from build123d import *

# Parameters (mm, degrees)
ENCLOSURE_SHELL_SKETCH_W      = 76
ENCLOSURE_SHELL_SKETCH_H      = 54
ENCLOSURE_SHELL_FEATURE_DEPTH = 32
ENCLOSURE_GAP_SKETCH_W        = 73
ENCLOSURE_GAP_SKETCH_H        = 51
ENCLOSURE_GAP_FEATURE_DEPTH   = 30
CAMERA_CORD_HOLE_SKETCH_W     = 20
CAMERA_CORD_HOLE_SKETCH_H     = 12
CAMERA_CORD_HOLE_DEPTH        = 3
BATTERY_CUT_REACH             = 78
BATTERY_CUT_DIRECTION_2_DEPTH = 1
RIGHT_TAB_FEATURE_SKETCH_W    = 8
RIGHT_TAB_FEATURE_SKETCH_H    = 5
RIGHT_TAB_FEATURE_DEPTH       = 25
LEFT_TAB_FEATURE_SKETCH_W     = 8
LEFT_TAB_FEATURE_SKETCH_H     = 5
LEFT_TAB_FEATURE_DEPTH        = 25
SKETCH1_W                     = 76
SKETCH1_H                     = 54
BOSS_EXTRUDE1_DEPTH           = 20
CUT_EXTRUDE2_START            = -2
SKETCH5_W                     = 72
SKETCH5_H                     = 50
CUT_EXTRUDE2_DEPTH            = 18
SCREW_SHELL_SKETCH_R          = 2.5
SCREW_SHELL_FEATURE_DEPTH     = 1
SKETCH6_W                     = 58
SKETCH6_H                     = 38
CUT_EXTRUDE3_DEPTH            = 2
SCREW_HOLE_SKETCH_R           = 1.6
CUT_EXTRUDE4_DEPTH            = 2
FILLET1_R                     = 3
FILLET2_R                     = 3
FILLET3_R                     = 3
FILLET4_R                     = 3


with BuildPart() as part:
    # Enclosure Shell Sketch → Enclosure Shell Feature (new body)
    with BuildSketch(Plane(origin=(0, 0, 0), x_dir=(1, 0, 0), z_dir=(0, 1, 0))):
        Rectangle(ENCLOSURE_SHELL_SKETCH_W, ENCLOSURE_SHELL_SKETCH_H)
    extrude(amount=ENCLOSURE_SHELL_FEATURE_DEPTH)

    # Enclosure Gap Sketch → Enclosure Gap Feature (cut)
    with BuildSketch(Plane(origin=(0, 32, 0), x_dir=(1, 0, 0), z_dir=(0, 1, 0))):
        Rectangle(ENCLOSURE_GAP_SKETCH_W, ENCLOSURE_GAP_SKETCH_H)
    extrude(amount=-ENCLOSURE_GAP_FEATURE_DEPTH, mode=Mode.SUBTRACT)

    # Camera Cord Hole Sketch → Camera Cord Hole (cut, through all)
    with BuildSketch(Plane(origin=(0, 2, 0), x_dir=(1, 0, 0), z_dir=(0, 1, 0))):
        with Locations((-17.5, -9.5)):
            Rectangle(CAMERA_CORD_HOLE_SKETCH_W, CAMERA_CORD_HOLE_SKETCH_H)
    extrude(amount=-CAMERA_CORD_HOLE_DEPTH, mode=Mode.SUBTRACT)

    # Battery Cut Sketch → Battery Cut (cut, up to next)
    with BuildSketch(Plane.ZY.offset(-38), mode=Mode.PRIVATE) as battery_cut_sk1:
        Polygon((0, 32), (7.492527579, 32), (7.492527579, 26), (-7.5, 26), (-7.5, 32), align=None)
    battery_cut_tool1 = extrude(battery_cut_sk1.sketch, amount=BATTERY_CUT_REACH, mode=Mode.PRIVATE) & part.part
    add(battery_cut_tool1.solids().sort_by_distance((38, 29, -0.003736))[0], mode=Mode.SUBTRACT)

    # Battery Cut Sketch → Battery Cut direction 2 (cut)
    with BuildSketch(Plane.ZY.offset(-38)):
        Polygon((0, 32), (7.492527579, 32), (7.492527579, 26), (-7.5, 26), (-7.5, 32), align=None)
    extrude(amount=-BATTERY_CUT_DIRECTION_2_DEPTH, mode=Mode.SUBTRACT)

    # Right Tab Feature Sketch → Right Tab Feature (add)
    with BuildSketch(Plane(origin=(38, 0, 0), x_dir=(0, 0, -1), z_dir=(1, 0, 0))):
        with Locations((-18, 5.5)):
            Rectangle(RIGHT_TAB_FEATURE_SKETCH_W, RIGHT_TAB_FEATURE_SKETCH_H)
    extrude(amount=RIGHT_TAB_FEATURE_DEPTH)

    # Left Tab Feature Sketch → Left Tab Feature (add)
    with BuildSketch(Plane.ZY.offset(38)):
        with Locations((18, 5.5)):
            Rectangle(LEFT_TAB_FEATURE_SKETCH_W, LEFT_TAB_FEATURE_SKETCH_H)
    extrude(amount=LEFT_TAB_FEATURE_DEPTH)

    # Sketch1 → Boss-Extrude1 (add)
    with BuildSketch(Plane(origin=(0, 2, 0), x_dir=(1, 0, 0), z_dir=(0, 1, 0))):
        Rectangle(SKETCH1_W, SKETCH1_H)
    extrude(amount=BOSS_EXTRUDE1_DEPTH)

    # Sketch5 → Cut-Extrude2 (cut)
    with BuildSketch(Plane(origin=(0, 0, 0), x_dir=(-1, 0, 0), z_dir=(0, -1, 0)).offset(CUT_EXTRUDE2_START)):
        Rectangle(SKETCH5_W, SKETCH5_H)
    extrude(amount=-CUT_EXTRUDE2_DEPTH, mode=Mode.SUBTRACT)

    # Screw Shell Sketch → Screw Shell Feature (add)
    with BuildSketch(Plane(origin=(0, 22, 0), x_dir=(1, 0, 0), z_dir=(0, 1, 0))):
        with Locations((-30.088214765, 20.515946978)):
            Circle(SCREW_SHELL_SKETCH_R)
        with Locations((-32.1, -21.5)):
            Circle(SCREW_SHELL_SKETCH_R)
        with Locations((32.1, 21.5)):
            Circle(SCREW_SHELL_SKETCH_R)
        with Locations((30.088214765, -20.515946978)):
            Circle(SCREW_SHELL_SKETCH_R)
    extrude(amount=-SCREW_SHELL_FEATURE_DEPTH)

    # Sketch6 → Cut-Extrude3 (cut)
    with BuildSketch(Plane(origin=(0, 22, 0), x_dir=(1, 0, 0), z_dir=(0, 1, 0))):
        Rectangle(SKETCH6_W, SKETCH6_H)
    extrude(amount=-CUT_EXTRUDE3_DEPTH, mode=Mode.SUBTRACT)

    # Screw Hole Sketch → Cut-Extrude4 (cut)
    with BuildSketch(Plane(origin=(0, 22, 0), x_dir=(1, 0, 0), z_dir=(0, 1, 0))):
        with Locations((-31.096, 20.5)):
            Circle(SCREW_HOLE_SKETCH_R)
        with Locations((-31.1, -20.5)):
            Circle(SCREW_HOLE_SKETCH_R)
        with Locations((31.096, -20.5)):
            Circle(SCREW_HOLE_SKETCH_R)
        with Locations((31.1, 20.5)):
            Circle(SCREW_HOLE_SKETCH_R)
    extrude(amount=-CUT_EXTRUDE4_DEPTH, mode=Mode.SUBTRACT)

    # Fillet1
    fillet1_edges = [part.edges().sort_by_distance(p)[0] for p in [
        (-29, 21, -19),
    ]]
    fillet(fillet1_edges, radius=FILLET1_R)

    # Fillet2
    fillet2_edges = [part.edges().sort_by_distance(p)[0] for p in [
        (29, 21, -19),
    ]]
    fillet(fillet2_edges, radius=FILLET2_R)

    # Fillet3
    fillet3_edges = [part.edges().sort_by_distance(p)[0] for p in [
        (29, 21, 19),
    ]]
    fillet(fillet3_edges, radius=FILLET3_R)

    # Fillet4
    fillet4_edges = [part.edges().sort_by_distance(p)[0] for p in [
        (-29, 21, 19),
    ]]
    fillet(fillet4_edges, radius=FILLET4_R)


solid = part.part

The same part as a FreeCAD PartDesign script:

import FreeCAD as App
import Part
import Sketcher
from FreeCAD import Vector


def edges_at(feature, points):
    """Names of the edges that pass closest to the given points."""
    edges = feature.Shape.Edges
    near = lambda p: min(range(len(edges)), key=lambda i: edges[i].distToShape(Part.Vertex(*p))[0])
    return sorted({f"Edge{near(p) + 1}" for p in points})

doc = App.newDocument("Part")
body = doc.addObject("PartDesign::Body", "Body")

sketch1 = doc.addObject("Sketcher::SketchObject", "Sketch")
body.addObject(sketch1)
sketch1.AttachmentSupport = (doc.XZ_Plane, [""])
sketch1.MapMode = "FlatFace"
sketch1.addGeometry(Part.LineSegment(Vector(-38, -27, 0), Vector(-38, 27, 0)), False)
sketch1.addGeometry(Part.LineSegment(Vector(-38, 27, 0), Vector(38, 27, 0)), False)
sketch1.addGeometry(Part.LineSegment(Vector(38, 27, 0), Vector(38, -27, 0)), False)
sketch1.addGeometry(Part.LineSegment(Vector(38, -27, 0), Vector(-38, -27, 0)), False)
sketch1.addConstraint(Sketcher.Constraint("Coincident", 0, 2, 1, 1))
sketch1.addConstraint(Sketcher.Constraint("Coincident", 1, 2, 2, 1))
sketch1.addConstraint(Sketcher.Constraint("Coincident", 2, 2, 3, 1))
sketch1.addConstraint(Sketcher.Constraint("Coincident", 3, 2, 0, 1))
sketch1.addConstraint(Sketcher.Constraint("Vertical", 0))
sketch1.addConstraint(Sketcher.Constraint("Horizontal", 1))
sketch1.addConstraint(Sketcher.Constraint("Vertical", 2))
sketch1.addConstraint(Sketcher.Constraint("Horizontal", 3))
sketch1.addConstraint(Sketcher.Constraint("Symmetric", 0, 2, 2, 2, -1, 1))
sketch1.addConstraint(Sketcher.Constraint("DistanceX", 1, 1, 1, 2, 76.0))
sketch1.addConstraint(Sketcher.Constraint("DistanceY", 0, 1, 0, 2, 54.0))
pad1 = doc.addObject("PartDesign::Pad", "Pad")
body.addObject(pad1)
pad1.Profile = sketch1
pad1.Length = 32
pad1.Reversed = True

sketch2 = doc.addObject("Sketcher::SketchObject", "Sketch001")
body.addObject(sketch2)
sketch2.AttachmentSupport = (doc.XZ_Plane, [""])
sketch2.MapMode = "FlatFace"
sketch2.AttachmentOffset = App.Placement(Vector(0, 0, -32), App.Rotation())
sketch2.addGeometry(Part.LineSegment(Vector(-36, -26, 0), Vector(-36, 26, 0)), False)
sketch2.addGeometry(Part.LineSegment(Vector(-36, 26, 0), Vector(36, 26, 0)), False)
sketch2.addGeometry(Part.LineSegment(Vector(36, 26, 0), Vector(36, -26, 0)), False)
sketch2.addGeometry(Part.LineSegment(Vector(36, -26, 0), Vector(-36, -26, 0)), False)
sketch2.addConstraint(Sketcher.Constraint("Coincident", 0, 2, 1, 1))
sketch2.addConstraint(Sketcher.Constraint("Coincident", 1, 2, 2, 1))
sketch2.addConstraint(Sketcher.Constraint("Coincident", 2, 2, 3, 1))
sketch2.addConstraint(Sketcher.Constraint("Coincident", 3, 2, 0, 1))
sketch2.addConstraint(Sketcher.Constraint("Vertical", 0))
sketch2.addConstraint(Sketcher.Constraint("Horizontal", 1))
sketch2.addConstraint(Sketcher.Constraint("Vertical", 2))
sketch2.addConstraint(Sketcher.Constraint("Horizontal", 3))
sketch2.addConstraint(Sketcher.Constraint("Symmetric", 0, 2, 2, 2, -1, 1))
sketch2.addConstraint(Sketcher.Constraint("DistanceX", 1, 1, 1, 2, 73.0))
sketch2.addConstraint(Sketcher.Constraint("DistanceY", 0, 1, 0, 2, 51.0))
pocket1 = doc.addObject("PartDesign::Pocket", "Pocket")
body.addObject(pocket1)
pocket1.Profile = sketch2
pocket1.Length = 30
pocket1.Reversed = True

sketch3 = doc.addObject("Sketcher::SketchObject", "Sketch002")
body.addObject(sketch3)
sketch3.AttachmentSupport = (doc.XZ_Plane, [""])
sketch3.MapMode = "FlatFace"
sketch3.AttachmentOffset = App.Placement(Vector(0, 0, -2), App.Rotation())
sketch3.addGeometry(Part.LineSegment(Vector(-28, 4, 0), Vector(-28, 16, 0)), False)
sketch3.addGeometry(Part.LineSegment(Vector(-28, 16, 0), Vector(-8, 16, 0)), False)
sketch3.addGeometry(Part.LineSegment(Vector(-8, 16, 0), Vector(-8, 4, 0)), False)
sketch3.addGeometry(Part.LineSegment(Vector(-8, 4, 0), Vector(-28, 4, 0)), False)
sketch3.addConstraint(Sketcher.Constraint("Coincident", 0, 2, 1, 1))
sketch3.addConstraint(Sketcher.Constraint("Coincident", 1, 2, 2, 1))
sketch3.addConstraint(Sketcher.Constraint("Coincident", 2, 2, 3, 1))
sketch3.addConstraint(Sketcher.Constraint("Coincident", 3, 2, 0, 1))
sketch3.addConstraint(Sketcher.Constraint("Vertical", 0))
sketch3.addConstraint(Sketcher.Constraint("Horizontal", 1))
sketch3.addConstraint(Sketcher.Constraint("Vertical", 2))
sketch3.addConstraint(Sketcher.Constraint("Horizontal", 3))
sketch3.addConstraint(Sketcher.Constraint("DistanceX", 1, 1, 1, 2, 20.0))
sketch3.addConstraint(Sketcher.Constraint("DistanceY", 0, 1, 0, 2, 12.0))
sketch3.addConstraint(Sketcher.Constraint("DistanceX", 0, 2, -1, 1, 27.5))
sketch3.addConstraint(Sketcher.Constraint("DistanceY", -1, 1, 0, 2, 15.5))
pocket2 = doc.addObject("PartDesign::Pocket", "Pocket001")
body.addObject(pocket2)
pocket2.Profile = sketch3
pocket2.Type = "ThroughAll"
pocket2.Reversed = True

sketch4 = doc.addObject("Sketcher::SketchObject", "Sketch003")
body.addObject(sketch4)
sketch4.AttachmentSupport = (doc.YZ_Plane, [""])
sketch4.MapMode = "FlatFace"
sketch4.AttachmentOffset = App.Placement(Vector(0, 0, 38), App.Rotation())
sketch4.addGeometry(Part.LineSegment(Vector(32, 7, 0), Vector(32, -8, 0)), False)
sketch4.addGeometry(Part.LineSegment(Vector(32, -8, 0), Vector(26, -8, 0)), False)
sketch4.addGeometry(Part.LineSegment(Vector(26, -8, 0), Vector(26, 7, 0)), False)
sketch4.addGeometry(Part.LineSegment(Vector(26, 7, 0), Vector(32, 7, 0)), False)
sketch4.addConstraint(Sketcher.Constraint("Coincident", 0, 2, 1, 1))
sketch4.addConstraint(Sketcher.Constraint("Coincident", 1, 2, 2, 1))
sketch4.addConstraint(Sketcher.Constraint("Coincident", 2, 2, 3, 1))
sketch4.addConstraint(Sketcher.Constraint("Coincident", 3, 2, 0, 1))
sketch4.addConstraint(Sketcher.Constraint("Vertical", 0))
sketch4.addConstraint(Sketcher.Constraint("Horizontal", 1))
sketch4.addConstraint(Sketcher.Constraint("Vertical", 2))
sketch4.addConstraint(Sketcher.Constraint("Horizontal", 3))
sketch4.addConstraint(Sketcher.Constraint("DistanceX", 1, 2, 1, 1, 6.0))
sketch4.addConstraint(Sketcher.Constraint("DistanceX", -1, 1, 0, 2, 32.0))
sketch4.addConstraint(Sketcher.Constraint("DistanceY", 0, 2, -1, 1, 7.5))
sketch4.addConstraint(Sketcher.Constraint("DistanceY", 0, 2, 0, 1, 14.992528))
pocket3 = doc.addObject("PartDesign::Pocket", "Pocket002")
body.addObject(pocket3)
pocket3.Profile = sketch4
pocket3.Type = "UpToFirst"

sketch5 = doc.addObject("Sketcher::SketchObject", "Sketch004")
body.addObject(sketch5)
sketch5.AttachmentSupport = (doc.YZ_Plane, [""])
sketch5.MapMode = "FlatFace"
sketch5.AttachmentOffset = App.Placement(Vector(0, 0, 38), App.Rotation())
sketch5.addGeometry(Part.LineSegment(Vector(32, 7, 0), Vector(32, -8, 0)), False)
sketch5.addGeometry(Part.LineSegment(Vector(32, -8, 0), Vector(26, -8, 0)), False)
sketch5.addGeometry(Part.LineSegment(Vector(26, -8, 0), Vector(26, 7, 0)), False)
sketch5.addGeometry(Part.LineSegment(Vector(26, 7, 0), Vector(32, 7, 0)), False)
sketch5.addConstraint(Sketcher.Constraint("Coincident", 0, 2, 1, 1))
sketch5.addConstraint(Sketcher.Constraint("Coincident", 1, 2, 2, 1))
sketch5.addConstraint(Sketcher.Constraint("Coincident", 2, 2, 3, 1))
sketch5.addConstraint(Sketcher.Constraint("Coincident", 3, 2, 0, 1))
sketch5.addConstraint(Sketcher.Constraint("Vertical", 0))
sketch5.addConstraint(Sketcher.Constraint("Horizontal", 1))
sketch5.addConstraint(Sketcher.Constraint("Vertical", 2))
sketch5.addConstraint(Sketcher.Constraint("Horizontal", 3))
sketch5.addConstraint(Sketcher.Constraint("DistanceX", 1, 2, 1, 1, 6.0))
sketch5.addConstraint(Sketcher.Constraint("DistanceX", -1, 1, 0, 2, 32.0))
sketch5.addConstraint(Sketcher.Constraint("DistanceY", 0, 2, -1, 1, 7.5))
sketch5.addConstraint(Sketcher.Constraint("DistanceY", 0, 2, 0, 1, 14.992528))
pocket4 = doc.addObject("PartDesign::Pocket", "Pocket003")
body.addObject(pocket4)
pocket4.Profile = sketch5
pocket4.Length = 1
pocket4.Reversed = True

sketch6 = doc.addObject("Sketcher::SketchObject", "Sketch005")
body.addObject(sketch6)
sketch6.AttachmentSupport = (doc.YZ_Plane, [""])
sketch6.MapMode = "FlatFace"
sketch6.AttachmentOffset = App.Placement(Vector(0, 0, 38), App.Rotation())
sketch6.addGeometry(Part.LineSegment(Vector(8, 22, 0), Vector(3, 22, 0)), False)
sketch6.addGeometry(Part.LineSegment(Vector(3, 22, 0), Vector(3, 14, 0)), False)
sketch6.addGeometry(Part.LineSegment(Vector(3, 14, 0), Vector(8, 14, 0)), False)
sketch6.addGeometry(Part.LineSegment(Vector(8, 14, 0), Vector(8, 22, 0)), False)
sketch6.addConstraint(Sketcher.Constraint("Coincident", 0, 2, 1, 1))
sketch6.addConstraint(Sketcher.Constraint("Coincident", 1, 2, 2, 1))
sketch6.addConstraint(Sketcher.Constraint("Coincident", 2, 2, 3, 1))
sketch6.addConstraint(Sketcher.Constraint("Coincident", 3, 2, 0, 1))
sketch6.addConstraint(Sketcher.Constraint("Horizontal", 0))
sketch6.addConstraint(Sketcher.Constraint("Vertical", 1))
sketch6.addConstraint(Sketcher.Constraint("Horizontal", 2))
sketch6.addConstraint(Sketcher.Constraint("Vertical", 3))
sketch6.addConstraint(Sketcher.Constraint("DistanceX", 0, 2, 0, 1, 5.0))
sketch6.addConstraint(Sketcher.Constraint("DistanceY", 1, 2, 1, 1, 8.0))
sketch6.addConstraint(Sketcher.Constraint("DistanceX", -1, 1, 0, 2, 3.0))
sketch6.addConstraint(Sketcher.Constraint("DistanceY", -1, 1, 0, 2, 22.0))
pad2 = doc.addObject("PartDesign::Pad", "Pad001")
body.addObject(pad2)
pad2.Profile = sketch6
pad2.Length = 25

sketch7 = doc.addObject("Sketcher::SketchObject", "Sketch006")
body.addObject(sketch7)
sketch7.AttachmentSupport = (doc.YZ_Plane, [""])
sketch7.MapMode = "FlatFace"
sketch7.AttachmentOffset = App.Placement(Vector(0, 0, -38), App.Rotation())
sketch7.addGeometry(Part.LineSegment(Vector(8, 14, 0), Vector(3, 14, 0)), False)
sketch7.addGeometry(Part.LineSegment(Vector(3, 14, 0), Vector(3, 22, 0)), False)
sketch7.addGeometry(Part.LineSegment(Vector(3, 22, 0), Vector(8, 22, 0)), False)
sketch7.addGeometry(Part.LineSegment(Vector(8, 22, 0), Vector(8, 14, 0)), False)
sketch7.addConstraint(Sketcher.Constraint("Coincident", 0, 2, 1, 1))
sketch7.addConstraint(Sketcher.Constraint("Coincident", 1, 2, 2, 1))
sketch7.addConstraint(Sketcher.Constraint("Coincident", 2, 2, 3, 1))
sketch7.addConstraint(Sketcher.Constraint("Coincident", 3, 2, 0, 1))
sketch7.addConstraint(Sketcher.Constraint("Horizontal", 0))
sketch7.addConstraint(Sketcher.Constraint("Vertical", 1))
sketch7.addConstraint(Sketcher.Constraint("Horizontal", 2))
sketch7.addConstraint(Sketcher.Constraint("Vertical", 3))
sketch7.addConstraint(Sketcher.Constraint("DistanceX", 0, 2, 0, 1, 5.0))
sketch7.addConstraint(Sketcher.Constraint("DistanceY", 1, 1, 1, 2, 8.0))
sketch7.addConstraint(Sketcher.Constraint("DistanceX", -1, 1, 0, 2, 3.0))
sketch7.addConstraint(Sketcher.Constraint("DistanceY", -1, 1, 0, 2, 14.0))
pad3 = doc.addObject("PartDesign::Pad", "Pad002")
body.addObject(pad3)
pad3.Profile = sketch7
pad3.Length = 25
pad3.Reversed = True

sketch8 = doc.addObject("Sketcher::SketchObject", "Sketch007")
body.addObject(sketch8)
sketch8.AttachmentSupport = (doc.XZ_Plane, [""])
sketch8.MapMode = "FlatFace"
sketch8.AttachmentOffset = App.Placement(Vector(0, 0, -2), App.Rotation())
sketch8.addGeometry(Part.LineSegment(Vector(-38, -27, 0), Vector(-38, 27, 0)), False)
sketch8.addGeometry(Part.LineSegment(Vector(-38, 27, 0), Vector(38, 27, 0)), False)
sketch8.addGeometry(Part.LineSegment(Vector(38, 27, 0), Vector(38, -27, 0)), False)
sketch8.addGeometry(Part.LineSegment(Vector(38, -27, 0), Vector(-38, -27, 0)), False)
sketch8.addConstraint(Sketcher.Constraint("Coincident", 0, 2, 1, 1))
sketch8.addConstraint(Sketcher.Constraint("Coincident", 1, 2, 2, 1))
sketch8.addConstraint(Sketcher.Constraint("Coincident", 2, 2, 3, 1))
sketch8.addConstraint(Sketcher.Constraint("Coincident", 3, 2, 0, 1))
sketch8.addConstraint(Sketcher.Constraint("Vertical", 0))
sketch8.addConstraint(Sketcher.Constraint("Horizontal", 1))
sketch8.addConstraint(Sketcher.Constraint("Vertical", 2))
sketch8.addConstraint(Sketcher.Constraint("Horizontal", 3))
sketch8.addConstraint(Sketcher.Constraint("Symmetric", 0, 2, 2, 2, -1, 1))
sketch8.addConstraint(Sketcher.Constraint("DistanceX", 1, 1, 1, 2, 76.0))
sketch8.addConstraint(Sketcher.Constraint("DistanceY", 0, 1, 0, 2, 54.0))
pad4 = doc.addObject("PartDesign::Pad", "Pad003")
body.addObject(pad4)
pad4.Profile = sketch8
pad4.Length = 20
pad4.Reversed = True

sketch9 = doc.addObject("Sketcher::SketchObject", "Sketch008")
body.addObject(sketch9)
sketch9.AttachmentSupport = (doc.XZ_Plane, [""])
sketch9.MapMode = "FlatFace"
sketch9.AttachmentOffset = App.Placement(Vector(0, 0, -2), App.Rotation())
sketch9.addGeometry(Part.LineSegment(Vector(36, -25, 0), Vector(36, 25, 0)), False)
sketch9.addGeometry(Part.LineSegment(Vector(36, 25, 0), Vector(-36, 25, 0)), False)
sketch9.addGeometry(Part.LineSegment(Vector(-36, 25, 0), Vector(-36, -25, 0)), False)
sketch9.addGeometry(Part.LineSegment(Vector(-36, -25, 0), Vector(36, -25, 0)), False)
sketch9.addConstraint(Sketcher.Constraint("Coincident", 0, 2, 1, 1))
sketch9.addConstraint(Sketcher.Constraint("Coincident", 1, 2, 2, 1))
sketch9.addConstraint(Sketcher.Constraint("Coincident", 2, 2, 3, 1))
sketch9.addConstraint(Sketcher.Constraint("Coincident", 3, 2, 0, 1))
sketch9.addConstraint(Sketcher.Constraint("Vertical", 0))
sketch9.addConstraint(Sketcher.Constraint("Horizontal", 1))
sketch9.addConstraint(Sketcher.Constraint("Vertical", 2))
sketch9.addConstraint(Sketcher.Constraint("Horizontal", 3))
sketch9.addConstraint(Sketcher.Constraint("Symmetric", 0, 2, 2, 2, -1, 1))
sketch9.addConstraint(Sketcher.Constraint("DistanceX", 1, 2, 1, 1, 72.0))
sketch9.addConstraint(Sketcher.Constraint("DistanceY", 0, 1, 0, 2, 50.0))
pocket5 = doc.addObject("PartDesign::Pocket", "Pocket004")
body.addObject(pocket5)
pocket5.Profile = sketch9
pocket5.Length = 18

sketch10 = doc.addObject("Sketcher::SketchObject", "Sketch009")
body.addObject(sketch10)
sketch10.AttachmentSupport = (doc.XZ_Plane, [""])
sketch10.MapMode = "FlatFace"
sketch10.AttachmentOffset = App.Placement(Vector(0, 0, -22), App.Rotation())
sketch10.addGeometry(Part.Circle(Vector(-30.1, -20.5, 0), Vector(0, 0, 1), 2.5), False)
sketch10.addGeometry(Part.Circle(Vector(-32.1, 21.5, 0), Vector(0, 0, 1), 2.5), False)
sketch10.addGeometry(Part.Circle(Vector(32.1, -21.5, 0), Vector(0, 0, 1), 2.5), False)
sketch10.addGeometry(Part.Circle(Vector(30.1, 20.5, 0), Vector(0, 0, 1), 2.5), False)
sketch10.addConstraint(Sketcher.Constraint("Equal", 0, 1))
sketch10.addConstraint(Sketcher.Constraint("Equal", 1, 2))
sketch10.addConstraint(Sketcher.Constraint("Equal", 2, 3))
sketch10.addConstraint(Sketcher.Constraint("Symmetric", 1, 3, 2, 3, -1, 1))
sketch10.addConstraint(Sketcher.Constraint("Symmetric", 0, 3, 3, 3, -1, 1))
sketch10.addConstraint(Sketcher.Constraint("Diameter", 0, 5.0))
sketch10.addConstraint(Sketcher.Constraint("DistanceY", 2, 3, 1, 3, 43.0))
sketch10.addConstraint(Sketcher.Constraint("DistanceX", 1, 3, -1, 1, 32.1))
sketch10.addConstraint(Sketcher.Constraint("DistanceX", 0, 3, 3, 3, 60.17643))
sketch10.addConstraint(Sketcher.Constraint("DistanceY", 0, 3, -1, 1, 20.515947))
pad5 = doc.addObject("PartDesign::Pad", "Pad004")
body.addObject(pad5)
pad5.Profile = sketch10
pad5.Length = 1

sketch11 = doc.addObject("Sketcher::SketchObject", "Sketch010")
body.addObject(sketch11)
sketch11.AttachmentSupport = (doc.XZ_Plane, [""])
sketch11.MapMode = "FlatFace"
sketch11.AttachmentOffset = App.Placement(Vector(0, 0, -22), App.Rotation())
sketch11.addGeometry(Part.LineSegment(Vector(-29, -19, 0), Vector(-29, 19, 0)), False)
sketch11.addGeometry(Part.LineSegment(Vector(-29, 19, 0), Vector(29, 19, 0)), False)
sketch11.addGeometry(Part.LineSegment(Vector(29, 19, 0), Vector(29, -19, 0)), False)
sketch11.addGeometry(Part.LineSegment(Vector(29, -19, 0), Vector(-29, -19, 0)), False)
sketch11.addConstraint(Sketcher.Constraint("Coincident", 0, 2, 1, 1))
sketch11.addConstraint(Sketcher.Constraint("Coincident", 1, 2, 2, 1))
sketch11.addConstraint(Sketcher.Constraint("Coincident", 2, 2, 3, 1))
sketch11.addConstraint(Sketcher.Constraint("Coincident", 3, 2, 0, 1))
sketch11.addConstraint(Sketcher.Constraint("Vertical", 0))
sketch11.addConstraint(Sketcher.Constraint("Horizontal", 1))
sketch11.addConstraint(Sketcher.Constraint("Vertical", 2))
sketch11.addConstraint(Sketcher.Constraint("Horizontal", 3))
sketch11.addConstraint(Sketcher.Constraint("Symmetric", 0, 2, 2, 2, -1, 1))
sketch11.addConstraint(Sketcher.Constraint("DistanceX", 1, 1, 1, 2, 58.0))
sketch11.addConstraint(Sketcher.Constraint("DistanceY", 0, 1, 0, 2, 38.0))
pocket6 = doc.addObject("PartDesign::Pocket", "Pocket005")
body.addObject(pocket6)
pocket6.Profile = sketch11
pocket6.Length = 2
pocket6.Reversed = True

sketch12 = doc.addObject("Sketcher::SketchObject", "Sketch011")
body.addObject(sketch12)
sketch12.AttachmentSupport = (doc.XZ_Plane, [""])
sketch12.MapMode = "FlatFace"
sketch12.AttachmentOffset = App.Placement(Vector(0, 0, -22), App.Rotation())
sketch12.addGeometry(Part.Circle(Vector(-31.1, -20.5, 0), Vector(0, 0, 1), 1.6), False)
sketch12.addGeometry(Part.Circle(Vector(-31.1, 20.5, 0), Vector(0, 0, 1), 1.6), False)
sketch12.addGeometry(Part.Circle(Vector(31.1, 20.5, 0), Vector(0, 0, 1), 1.6), False)
sketch12.addGeometry(Part.Circle(Vector(31.1, -20.5, 0), Vector(0, 0, 1), 1.6), False)
sketch12.addConstraint(Sketcher.Constraint("Equal", 0, 1))
sketch12.addConstraint(Sketcher.Constraint("Equal", 1, 2))
sketch12.addConstraint(Sketcher.Constraint("Equal", 2, 3))
sketch12.addConstraint(Sketcher.Constraint("Symmetric", 0, 3, 2, 3, -1, 1))
sketch12.addConstraint(Sketcher.Constraint("Symmetric", 1, 3, 3, 3, -1, 1))
sketch12.addConstraint(Sketcher.Constraint("Horizontal", 1, 3, 2, 3))
sketch12.addConstraint(Sketcher.Constraint("Diameter", 0, 3.2))
sketch12.addConstraint(Sketcher.Constraint("DistanceY", 0, 3, 1, 3, 41.0))
sketch12.addConstraint(Sketcher.Constraint("DistanceX", 1, 3, -1, 1, 31.1))
sketch12.addConstraint(Sketcher.Constraint("DistanceX", 0, 3, -1, 1, 31.096))
pocket7 = doc.addObject("PartDesign::Pocket", "Pocket006")
body.addObject(pocket7)
pocket7.Profile = sketch12
pocket7.Length = 2
pocket7.Reversed = True
doc.recompute()

fillet = doc.addObject("PartDesign::Fillet", "Fillet")
body.addObject(fillet)
fillet.Base = (pocket7, edges_at(pocket7, [(-29, 21, -19)]))
fillet.Radius = 3
doc.recompute()

fillet2 = doc.addObject("PartDesign::Fillet", "Fillet001")
body.addObject(fillet2)
fillet2.Base = (fillet, edges_at(fillet, [(29, 21, -19)]))
fillet2.Radius = 3
doc.recompute()

fillet3 = doc.addObject("PartDesign::Fillet", "Fillet002")
body.addObject(fillet3)
fillet3.Base = (fillet2, edges_at(fillet2, [(29, 21, 19)]))
fillet3.Radius = 3
doc.recompute()

fillet4 = doc.addObject("PartDesign::Fillet", "Fillet003")
body.addObject(fillet4)
fillet4.Base = (fillet3, edges_at(fillet3, [(-29, 21, 19)]))
fillet4.Radius = 3

doc.recompute()
